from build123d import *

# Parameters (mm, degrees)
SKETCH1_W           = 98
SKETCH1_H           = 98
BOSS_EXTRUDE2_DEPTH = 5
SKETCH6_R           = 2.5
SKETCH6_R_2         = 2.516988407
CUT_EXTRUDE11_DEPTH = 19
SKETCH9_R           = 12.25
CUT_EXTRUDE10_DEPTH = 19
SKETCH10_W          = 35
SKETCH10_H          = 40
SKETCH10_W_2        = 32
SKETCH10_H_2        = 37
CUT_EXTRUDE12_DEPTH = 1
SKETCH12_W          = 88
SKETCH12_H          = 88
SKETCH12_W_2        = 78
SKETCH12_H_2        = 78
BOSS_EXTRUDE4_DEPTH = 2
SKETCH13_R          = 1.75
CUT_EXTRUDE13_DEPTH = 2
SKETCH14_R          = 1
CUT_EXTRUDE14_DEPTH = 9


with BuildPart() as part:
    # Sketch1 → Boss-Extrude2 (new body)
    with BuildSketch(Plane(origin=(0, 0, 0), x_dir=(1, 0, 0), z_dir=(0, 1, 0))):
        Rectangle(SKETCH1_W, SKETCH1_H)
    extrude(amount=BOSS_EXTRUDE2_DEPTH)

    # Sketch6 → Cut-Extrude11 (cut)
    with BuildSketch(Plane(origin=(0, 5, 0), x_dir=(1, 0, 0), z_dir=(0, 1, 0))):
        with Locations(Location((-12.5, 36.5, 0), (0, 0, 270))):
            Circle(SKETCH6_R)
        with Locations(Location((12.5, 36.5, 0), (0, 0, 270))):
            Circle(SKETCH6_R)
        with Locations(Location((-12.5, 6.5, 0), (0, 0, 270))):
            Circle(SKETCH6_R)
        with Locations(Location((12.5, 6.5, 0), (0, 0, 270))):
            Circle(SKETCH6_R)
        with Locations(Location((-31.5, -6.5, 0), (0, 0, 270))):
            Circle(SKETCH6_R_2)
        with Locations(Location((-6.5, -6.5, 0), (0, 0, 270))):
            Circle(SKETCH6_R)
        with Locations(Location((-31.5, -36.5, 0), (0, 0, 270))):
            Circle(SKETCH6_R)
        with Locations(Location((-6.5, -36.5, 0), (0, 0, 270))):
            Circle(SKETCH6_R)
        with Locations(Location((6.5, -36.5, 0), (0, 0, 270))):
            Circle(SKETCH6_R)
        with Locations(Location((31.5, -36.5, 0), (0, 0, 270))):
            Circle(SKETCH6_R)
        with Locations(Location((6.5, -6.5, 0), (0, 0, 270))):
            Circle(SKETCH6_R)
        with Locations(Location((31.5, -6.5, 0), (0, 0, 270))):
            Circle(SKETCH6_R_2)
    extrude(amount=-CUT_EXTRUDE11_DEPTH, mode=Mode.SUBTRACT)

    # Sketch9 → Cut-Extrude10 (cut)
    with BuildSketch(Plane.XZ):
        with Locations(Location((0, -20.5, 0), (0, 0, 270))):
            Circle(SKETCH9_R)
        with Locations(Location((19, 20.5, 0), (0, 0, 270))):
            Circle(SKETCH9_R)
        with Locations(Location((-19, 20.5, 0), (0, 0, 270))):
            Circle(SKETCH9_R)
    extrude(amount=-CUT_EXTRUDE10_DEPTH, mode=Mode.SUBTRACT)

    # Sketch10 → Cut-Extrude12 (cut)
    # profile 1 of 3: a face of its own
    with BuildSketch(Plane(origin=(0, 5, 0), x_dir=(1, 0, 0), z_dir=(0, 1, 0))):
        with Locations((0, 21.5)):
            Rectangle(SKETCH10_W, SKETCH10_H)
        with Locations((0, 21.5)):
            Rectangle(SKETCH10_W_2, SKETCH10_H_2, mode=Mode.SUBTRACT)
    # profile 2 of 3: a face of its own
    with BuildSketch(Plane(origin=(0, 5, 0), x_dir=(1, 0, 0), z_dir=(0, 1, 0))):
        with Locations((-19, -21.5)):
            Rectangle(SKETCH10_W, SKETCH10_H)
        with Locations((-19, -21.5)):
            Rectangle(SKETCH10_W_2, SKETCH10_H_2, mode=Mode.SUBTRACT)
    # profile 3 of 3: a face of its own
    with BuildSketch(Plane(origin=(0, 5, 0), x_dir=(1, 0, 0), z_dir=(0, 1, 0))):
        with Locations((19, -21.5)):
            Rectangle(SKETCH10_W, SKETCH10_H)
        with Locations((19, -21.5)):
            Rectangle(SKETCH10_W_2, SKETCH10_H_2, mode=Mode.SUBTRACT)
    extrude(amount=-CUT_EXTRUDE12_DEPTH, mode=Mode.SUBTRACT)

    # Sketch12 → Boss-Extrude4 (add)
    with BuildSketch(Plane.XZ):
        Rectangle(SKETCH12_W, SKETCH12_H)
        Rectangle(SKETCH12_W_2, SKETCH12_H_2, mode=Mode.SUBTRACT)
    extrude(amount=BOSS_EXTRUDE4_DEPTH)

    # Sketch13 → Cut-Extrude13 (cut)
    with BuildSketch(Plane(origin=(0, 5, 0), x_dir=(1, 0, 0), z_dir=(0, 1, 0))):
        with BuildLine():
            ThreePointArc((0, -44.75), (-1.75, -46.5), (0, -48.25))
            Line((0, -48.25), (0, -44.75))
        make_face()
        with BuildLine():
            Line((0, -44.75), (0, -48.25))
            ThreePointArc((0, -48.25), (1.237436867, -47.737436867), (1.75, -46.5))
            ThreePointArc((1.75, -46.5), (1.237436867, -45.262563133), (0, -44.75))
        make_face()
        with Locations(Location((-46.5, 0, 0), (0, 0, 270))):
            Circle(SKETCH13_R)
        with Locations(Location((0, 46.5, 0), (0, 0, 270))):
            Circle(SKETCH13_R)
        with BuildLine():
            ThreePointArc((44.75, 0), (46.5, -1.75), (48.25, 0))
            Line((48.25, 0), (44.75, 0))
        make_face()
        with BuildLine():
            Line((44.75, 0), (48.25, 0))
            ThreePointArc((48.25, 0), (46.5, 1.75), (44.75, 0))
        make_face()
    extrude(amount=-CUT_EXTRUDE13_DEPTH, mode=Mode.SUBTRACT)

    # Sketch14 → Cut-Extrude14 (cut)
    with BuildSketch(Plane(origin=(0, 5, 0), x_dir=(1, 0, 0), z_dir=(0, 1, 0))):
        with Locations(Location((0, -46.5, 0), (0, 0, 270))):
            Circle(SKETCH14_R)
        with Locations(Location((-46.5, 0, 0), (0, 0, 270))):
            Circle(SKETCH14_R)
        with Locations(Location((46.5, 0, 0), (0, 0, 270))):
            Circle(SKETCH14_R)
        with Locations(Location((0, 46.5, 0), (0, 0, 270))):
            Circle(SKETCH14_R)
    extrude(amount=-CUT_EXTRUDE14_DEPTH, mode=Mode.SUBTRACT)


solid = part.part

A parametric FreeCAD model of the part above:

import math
import FreeCAD as App
import Part
import Sketcher
Q = App.Units.Quantity


def add_polygon(sketch, points):
    """Adds a closed chain of lines whose ends are joined by coincident constraints."""
    first, n = sketch.GeometryCount, len(points)
    for a, b in zip(points, points[1:] + points[:1]):
        sketch.addGeometry(Part.LineSegment(App.Vector(*a, 0), App.Vector(*b, 0)), False)
    for i in range(n):
        sketch.addConstraint(Sketcher.Constraint("Coincident", first + i, 2, first + (i + 1) % n, 1))

doc = App.newDocument("Part")
body = doc.addObject("PartDesign::Body", "Body")

# Sketch on XZ plane
sketch1 = body.newObject("Sketcher::SketchObject", "Sketch")
sketch1.AttachmentSupport = (doc.getObject("XZ_Plane"), [""])
sketch1.MapMode = "FlatFace"
add_polygon(sketch1, [(-49, -49), (-49, 49), (49, 49), (49, -49)])  # lines 0-3
sketch1.addConstraint(Sketcher.Constraint("Vertical", 0))
sketch1.addConstraint(Sketcher.Constraint("Horizontal", 1))
sketch1.addConstraint(Sketcher.Constraint("Vertical", 2))
sketch1.addConstraint(Sketcher.Constraint("Horizontal", 3))
sketch1.addConstraint(Sketcher.Constraint("Symmetric", 0, 2, 2, 2, -1, 1))
sketch1.addConstraint(Sketcher.Constraint("Equal", 3, 0))
sketch1.addConstraint(Sketcher.Constraint("DistanceX", 1, 1, 1, 2, Q("98 mm")))
pad1 = body.newObject("PartDesign::Pad", "Pad")
pad1.Profile = sketch1
pad1.Length = 5
pad1.Reversed = True

# Sketch on XZ plane
sketch2 = body.newObject("Sketcher::SketchObject", "Sketch001")
sketch2.AttachmentSupport = (doc.getObject("XZ_Plane"), [""])
sketch2.MapMode = "FlatFace"
sketch2.AttachmentOffset = App.Placement(App.Vector(0, 0, -5), App.Rotation())
sketch2.addGeometry(Part.Circle(App.Vector(-12.5, -36.5, 0), App.Vector(0, 0, 1), 2.5), False)
sketch2.addGeometry(Part.Circle(App.Vector(12.5, -36.5, 0), App.Vector(0, 0, 1), 2.5), False)
sketch2.addGeometry(Part.Circle(App.Vector(-12.5, -6.5, 0), App.Vector(0, 0, 1), 2.5), False)
sketch2.addGeometry(Part.Circle(App.Vector(12.5, -6.5, 0), App.Vector(0, 0, 1), 2.5), False)
sketch2.addGeometry(Part.Circle(App.Vector(-31.5, 6.5, 0), App.Vector(0, 0, 1), 2.5), False)
sketch2.addGeometry(Part.Circle(App.Vector(-6.5, 6.5, 0), App.Vector(0, 0, 1), 2.5), False)
sketch2.addGeometry(Part.Circle(App.Vector(-31.5, 36.5, 0), App.Vector(0, 0, 1), 2.5), False)
sketch2.addGeometry(Part.Circle(App.Vector(-6.5, 36.5, 0), App.Vector(0, 0, 1), 2.5), False)
sketch2.addGeometry(Part.Circle(App.Vector(6.5, 36.5, 0), App.Vector(0, 0, 1), 2.5), False)
sketch2.addGeometry(Part.Circle(App.Vector(31.5, 36.5, 0), App.Vector(0, 0, 1), 2.5), False)
sketch2.addGeometry(Part.Circle(App.Vector(6.5, 6.5, 0), App.Vector(0, 0, 1), 2.5), False)
sketch2.addGeometry(Part.Circle(App.Vector(31.5, 6.5, 0), App.Vector(0, 0, 1), 2.5), False)
sketch2.addConstraint(Sketcher.Constraint("Equal", 0, 1))
sketch2.addConstraint(Sketcher.Constraint("Equal", 1, 2))
sketch2.addConstraint(Sketcher.Constraint("Equal", 2, 3))
sketch2.addConstraint(Sketcher.Constraint("Equal", 3, 5))
sketch2.addConstraint(Sketcher.Constraint("Equal", 5, 6))
sketch2.addConstraint(Sketcher.Constraint("Equal", 6, 7))
sketch2.addConstraint(Sketcher.Constraint("Equal", 7, 8))
sketch2.addConstraint(Sketcher.Constraint("Equal", 8, 9))
sketch2.addConstraint(Sketcher.Constraint("Equal", 9, 10))
sketch2.addConstraint(Sketcher.Constraint("Equal", 4, 11))
sketch2.addConstraint(Sketcher.Constraint("Symmetric", 0, 3, 1, 3, -2))
sketch2.addConstraint(Sketcher.Constraint("Symmetric", 2, 3, 3, 3, -2))
sketch2.addConstraint(Sketcher.Constraint("Symmetric", 7, 3, 8, 3, -2))
sketch2.addConstraint(Sketcher.Constraint("Symmetric", 6, 3, 9, 3, -2))
sketch2.addConstraint(Sketcher.Constraint("Symmetric", 5, 3, 10, 3, -2))
sketch2.addConstraint(Sketcher.Constraint("Symmetric", 4, 3, 11, 3, -2))
sketch2.addConstraint(Sketcher.Constraint("Horizontal", 4, 3, 5, 3))
sketch2.addConstraint(Sketcher.Constraint("Horizontal", 6, 3, 7, 3))
sketch2.addConstraint(Sketcher.Constraint("Vertical", 0, 3, 2, 3))
sketch2.addConstraint(Sketcher.Constraint("Vertical", 4, 3, 6, 3))
sketch2.addConstraint(Sketcher.Constraint("Vertical", 5, 3, 7, 3))
sketch2.addConstraint(Sketcher.Constraint("Diameter", 0, Q("5 mm")))
sketch2.addConstraint(Sketcher.Constraint("DistanceX", 0, 3, 1, 3, Q("25 mm")))
sketch2.addConstraint(Sketcher.Constraint("DistanceY", 0, 3, 2, 3, Q("30 mm")))
sketch2.addConstraint(Sketcher.Constraint("DistanceX", 4, 3, 2, 3, Q("19 mm")))
sketch2.addConstraint(Sketcher.Constraint("DistanceY", 2, 3, 4, 3, Q("13 mm")))
sketch2.addConstraint(Sketcher.Constraint("DistanceX", 2, 3, 5, 3, Q("6 mm")))
sketch2.addConstraint(Sketcher.Constraint("DistanceY", 4, 3, 6, 3, Q("30 mm")))
sketch2.addConstraint(Sketcher.Constraint("DistanceY", 0, 3, -1, 1, Q("36.5 mm")))
sketch2.addConstraint(Sketcher.Constraint("Diameter", 4, Q("5.033977 mm")))
pocket1 = body.newObject("PartDesign::Pocket", "Pocket")
pocket1.Profile = sketch2
pocket1.Length = 19
pocket1.Reversed = True

# Sketch on XZ plane
sketch3 = body.newObject("Sketcher::SketchObject", "Sketch002")
sketch3.AttachmentSupport = (doc.getObject("XZ_Plane"), [""])
sketch3.MapMode = "FlatFace"
sketch3.addGeometry(Part.Circle(App.Vector(0, -20, 0), App.Vector(0, 0, 1), 12), False)
sketch3.addGeometry(Part.Circle(App.Vector(19, 20, 0), App.Vector(0, 0, 1), 12), False)
sketch3.addGeometry(Part.Circle(App.Vector(-19, 20, 0), App.Vector(0, 0, 1), 12), False)
sketch3.addConstraint(Sketcher.Constraint("Equal", 0, 1))
sketch3.addConstraint(Sketcher.Constraint("Equal", 1, 2))
sketch3.addConstraint(Sketcher.Constraint("Symmetric", 1, 3, 2, 3, -2))
sketch3.addConstraint(Sketcher.Constraint("PointOnObject", 0, 3, -2))
sketch3.addConstraint(Sketcher.Constraint("Diameter", 0, Q("24.5 mm")))
sketch3.addConstraint(Sketcher.Constraint("DistanceX", -1, 1, 1, 3, Q("19 mm")))
sketch3.addConstraint(Sketcher.Constraint("DistanceY", 0, 3, 1, 3, Q("41 mm")))
sketch3.addConstraint(Sketcher.Constraint("DistanceY", 0, 3, -1, 1, Q("20.5 mm")))
pocket2 = body.newObject("PartDesign::Pocket", "Pocket001")
pocket2.Profile = sketch3
pocket2.Length = 19

# Sketch on XZ plane
sketch4 = body.newObject("Sketcher::SketchObject", "Sketch003")
sketch4.AttachmentSupport = (doc.getObject("XZ_Plane"), [""])
sketch4.MapMode = "FlatFace"
sketch4.AttachmentOffset = App.Placement(App.Vector(0, 0, -5), App.Rotation())
add_polygon(sketch4, [(-18, -42), (-18, -2), (18, -2), (18, -42)])  # lines 0-3
add_polygon(sketch4, [(16, -3), (-16, -3), (-16, -40), (16, -40)])  # lines 4-7
add_polygon(sketch4, [(-36, 2), (-36, 42), (-2, 42), (-2, 2)])  # lines 8-11
add_polygon(sketch4, [(-3, 40), (-35, 40), (-35, 3), (-3, 3)])  # lines 12-15
add_polygon(sketch4, [(2, 2), (2, 42), (36, 42), (36, 2)])  # lines 16-19
add_polygon(sketch4, [(35, 40), (3, 40), (3, 3), (35, 3)])  # lines 20-23
sketch4.addConstraint(Sketcher.Constraint("Vertical", 0))
sketch4.addConstraint(Sketcher.Constraint("Horizontal", 1))
sketch4.addConstraint(Sketcher.Constraint("Vertical", 2))
sketch4.addConstraint(Sketcher.Constraint("Horizontal", 3))
sketch4.addConstraint(Sketcher.Constraint("Horizontal", 4))
sketch4.addConstraint(Sketcher.Constraint("Vertical", 5))
sketch4.addConstraint(Sketcher.Constraint("Horizontal", 6))
sketch4.addConstraint(Sketcher.Constraint("Vertical", 7))
sketch4.addConstraint(Sketcher.Constraint("Vertical", 8))
sketch4.addConstraint(Sketcher.Constraint("Horizontal", 9))
sketch4.addConstraint(Sketcher.Constraint("Vertical", 10))
sketch4.addConstraint(Sketcher.Constraint("Horizontal", 11))
sketch4.addConstraint(Sketcher.Constraint("Horizontal", 12))
sketch4.addConstraint(Sketcher.Constraint("Vertical", 13))
sketch4.addConstraint(Sketcher.Constraint("Horizontal", 14))
sketch4.addConstraint(Sketcher.Constraint("Vertical", 15))
sketch4.addConstraint(Sketcher.Constraint("Vertical", 16))
sketch4.addConstraint(Sketcher.Constraint("Horizontal", 17))
sketch4.addConstraint(Sketcher.Constraint("Vertical", 18))
sketch4.addConstraint(Sketcher.Constraint("Horizontal", 19))
sketch4.addConstraint(Sketcher.Constraint("Horizontal", 20))
sketch4.addConstraint(Sketcher.Constraint("Vertical", 21))
sketch4.addConstraint(Sketcher.Constraint("Horizontal", 22))
sketch4.addConstraint(Sketcher.Constraint("Vertical", 23))
sketch4.addConstraint(Sketcher.Constraint("Symmetric", 9, 2, 16, 2, -2))
sketch4.addConstraint(Sketcher.Constraint("Symmetric", 11, 2, 18, 2, -2))
sketch4.addConstraint(Sketcher.Constraint("Symmetric", 15, 2, 20, 2, -2))
sketch4.addConstraint(Sketcher.Constraint("Symmetric", 13, 2, 22, 2, -2))
sketch4.addConstraint(Sketcher.Constraint("Equal", 3, 9))
sketch4.addConstraint(Sketcher.Constraint("Equal", 6, 12))
sketch4.addConstraint(Sketcher.Constraint("Equal", 2, 8))
sketch4.addConstraint(Sketcher.Constraint("Equal", 7, 13))
sketch4.addConstraint(Sketcher.Constraint("DistanceX", 1, 1, 1, 2, Q("35 mm")))
sketch4.addConstraint(Sketcher.Constraint("DistanceX", 4, 2, 4, 1, Q("32 mm")))
sketch4.addConstraint(Sketcher.Constraint("DistanceY", 0, 1, 0, 2, Q("40 mm")))
sketch4.addConstraint(Sketcher.Constraint("DistanceY", 5, 2, 5, 1, Q("37 mm")))
sketch4.addConstraint(Sketcher.Constraint("DistanceX", 4, 2, -1, 1, Q("16 mm")))
sketch4.addConstraint(Sketcher.Constraint("DistanceY", 4, 2, -1, 1, Q("3 mm")))
sketch4.addConstraint(Sketcher.Constraint("DistanceX", 12, 2, -1, 1, Q("35 mm")))
sketch4.addConstraint(Sketcher.Constraint("DistanceY", -1, 1, 12, 2, Q("40 mm")))
sketch4.addConstraint(Sketcher.Constraint("DistanceX", 8, 2, 0, 2, Q("19 mm")))
sketch4.addConstraint(Sketcher.Constraint("DistanceY", 0, 2, 8, 2, Q("43 mm")))
sketch4.addConstraint(Sketcher.Constraint("DistanceX", 9, 2, 16, 2, Q("3 mm")))
sketch4.addConstraint(Sketcher.Constraint("DistanceY", 0, 2, -1, 1, Q("1.5 mm")))
pocket3 = body.newObject("PartDesign::Pocket", "Pocket002")
pocket3.Profile = sketch4
pocket3.Length = 1
pocket3.Reversed = True

# Sketch on XZ plane
sketch5 = body.newObject("Sketcher::SketchObject", "Sketch004")
sketch5.AttachmentSupport = (doc.getObject("XZ_Plane"), [""])
sketch5.MapMode = "FlatFace"
add_polygon(sketch5, [(-44, 44), (-44, -44), (44, -44), (44, 44)])  # lines 0-3
add_polygon(sketch5, [(39, -39), (-39, -39), (-39, 39), (39, 39)])  # lines 4-7
sketch5.addConstraint(Sketcher.Constraint("Vertical", 0))
sketch5.addConstraint(Sketcher.Constraint("Horizontal", 1))
sketch5.addConstraint(Sketcher.Constraint("Vertical", 2))
sketch5.addConstraint(Sketcher.Constraint("Horizontal", 3))
sketch5.addConstraint(Sketcher.Constraint("Horizontal", 4))
sketch5.addConstraint(Sketcher.Constraint("Vertical", 5))
sketch5.addConstraint(Sketcher.Constraint("Horizontal", 6))
sketch5.addConstraint(Sketcher.Constraint("Vertical", 7))
sketch5.addConstraint(Sketcher.Constraint("Symmetric", 0, 2, 2, 2, -1, 1))
sketch5.addConstraint(Sketcher.Constraint("Symmetric", 4, 2, 6, 2, -1, 1))
sketch5.addConstraint(Sketcher.Constraint("Equal", 3, 0))
sketch5.addConstraint(Sketcher.Constraint("Equal", 6, 5))
sketch5.addConstraint(Sketcher.Constraint("DistanceX", 1, 1, 1, 2, Q("88 mm")))
sketch5.addConstraint(Sketcher.Constraint("DistanceX", 4, 2, 4, 1, Q("78 mm")))
pad2 = body.newObject("PartDesign::Pad", "Pad001")
pad2.Profile = sketch5
pad2.Length = 2

# Sketch on XZ plane
sketch6 = body.newObject("Sketcher::SketchObject", "Sketch005")
sketch6.AttachmentSupport = (doc.getObject("XZ_Plane"), [""])
sketch6.MapMode = "FlatFace"
sketch6.AttachmentOffset = App.Placement(App.Vector(0, 0, -5), App.Rotation())
sketch6.addGeometry(Part.ArcOfCircle(Part.Circle(App.Vector(0, 46.5, 0), App.Vector(0, 0, 1), 1.8), math.radians(90), math.radians(270)), False)
sketch6.addGeometry(Part.ArcOfCircle(Part.Circle(App.Vector(0, 46.5, 0), App.Vector(0, 0, 1), 1.8), math.radians(0), math.radians(90)), False)
sketch6.addGeometry(Part.ArcOfCircle(Part.Circle(App.Vector(0, 46.5, 0), App.Vector(0, 0, 1), 1.8), math.radians(-90), math.radians(0)), False)
sketch6.addGeometry(Part.Circle(App.Vector(-46.5, 0, 0), App.Vector(0, 0, 1), 1.8), False)
sketch6.addGeometry(Part.Circle(App.Vector(0, -46.5, 0), App.Vector(0, 0, 1), 1.8), False)
sketch6.addGeometry(Part.Circle(App.Vector(46.5, 0, 0), App.Vector(0, 0, 1), 1.8), False)
sketch6.addConstraint(Sketcher.Constraint("Tangent", 0, 1, 1, 2))
sketch6.addConstraint(Sketcher.Constraint("Tangent", 1, 1, 2, 2))
sketch6.addConstraint(Sketcher.Constraint("Tangent", 2, 1, 0, 2))
sketch6.addConstraint(Sketcher.Constraint("Equal", 2, 3))
sketch6.addConstraint(Sketcher.Constraint("Equal", 3, 4))
sketch6.addConstraint(Sketcher.Constraint("Equal", 4, 5))
sketch6.addConstraint(Sketcher.Constraint("Symmetric", 0, 3, 4, 3, -1, 1))
sketch6.addConstraint(Sketcher.Constraint("Symmetric", 3, 3, 5, 3, -1, 1))
sketch6.addConstraint(Sketcher.Constraint("PointOnObject", 0, 3, -2))
sketch6.addConstraint(Sketcher.Constraint("PointOnObject", 3, 3, -1))
sketch6.addConstraint(Sketcher.Constraint("PointOnObject", 0, 1, -2))
sketch6.addConstraint(Sketcher.Constraint("PointOnObject", 2, 1, -2))
sketch6.addConstraint(Sketcher.Constraint("Horizontal", 2, 3, 1, 1))
sketch6.addConstraint(Sketcher.Constraint("Diameter", 3, Q("3.5 mm")))
sketch6.addConstraint(Sketcher.Constraint("DistanceY", 4, 3, 0, 3, Q("93 mm")))
sketch6.addConstraint(Sketcher.Constraint("DistanceX", 3, 3, 5, 3, Q("93 mm")))
pocket4 = body.newObject("PartDesign::Pocket", "Pocket003")
pocket4.Profile = sketch6
pocket4.Length = 2
pocket4.Reversed = True

# Sketch on XZ plane
sketch7 = body.newObject("Sketcher::SketchObject", "Sketch006")
sketch7.AttachmentSupport = (doc.getObject("XZ_Plane"), [""])
sketch7.MapMode = "FlatFace"
sketch7.AttachmentOffset = App.Placement(App.Vector(0, 0, -5), App.Rotation())
sketch7.addGeometry(Part.Circle(App.Vector(0, 46.5, 0), App.Vector(0, 0, 1), 1), False)
sketch7.addGeometry(Part.Circle(App.Vector(-46.5, 0, 0), App.Vector(0, 0, 1), 1), False)
sketch7.addGeometry(Part.Circle(App.Vector(46.5, 0, 0), App.Vector(0, 0, 1), 1), False)
sketch7.addGeometry(Part.Circle(App.Vector(0, -46.5, 0), App.Vector(0, 0, 1), 1), False)
sketch7.addConstraint(Sketcher.Constraint("Equal", 0, 1))
sketch7.addConstraint(Sketcher.Constraint("Equal", 1, 2))
sketch7.addConstraint(Sketcher.Constraint("Equal", 2, 3))
sketch7.addConstraint(Sketcher.Constraint("Symmetric", 1, 3, 2, 3, -1, 1))
sketch7.addConstraint(Sketcher.Constraint("Symmetric", 0, 3, 3, 3, -1, 1))
sketch7.addConstraint(Sketcher.Constraint("PointOnObject", 0, 3, -2))
sketch7.addConstraint(Sketcher.Constraint("PointOnObject", 1, 3, -1))
sketch7.addConstraint(Sketcher.Constraint("Diameter", 0, Q("2 mm")))
sketch7.addConstraint(Sketcher.Constraint("DistanceX", 1, 3, 2, 3, Q("93 mm")))
sketch7.addConstraint(Sketcher.Constraint("DistanceY", 3, 3, 0, 3, Q("93 mm")))
pocket5 = body.newObject("PartDesign::Pocket", "Pocket004")
pocket5.Profile = sketch7
pocket5.Length = 9
pocket5.Reversed = True

doc.recompute()
